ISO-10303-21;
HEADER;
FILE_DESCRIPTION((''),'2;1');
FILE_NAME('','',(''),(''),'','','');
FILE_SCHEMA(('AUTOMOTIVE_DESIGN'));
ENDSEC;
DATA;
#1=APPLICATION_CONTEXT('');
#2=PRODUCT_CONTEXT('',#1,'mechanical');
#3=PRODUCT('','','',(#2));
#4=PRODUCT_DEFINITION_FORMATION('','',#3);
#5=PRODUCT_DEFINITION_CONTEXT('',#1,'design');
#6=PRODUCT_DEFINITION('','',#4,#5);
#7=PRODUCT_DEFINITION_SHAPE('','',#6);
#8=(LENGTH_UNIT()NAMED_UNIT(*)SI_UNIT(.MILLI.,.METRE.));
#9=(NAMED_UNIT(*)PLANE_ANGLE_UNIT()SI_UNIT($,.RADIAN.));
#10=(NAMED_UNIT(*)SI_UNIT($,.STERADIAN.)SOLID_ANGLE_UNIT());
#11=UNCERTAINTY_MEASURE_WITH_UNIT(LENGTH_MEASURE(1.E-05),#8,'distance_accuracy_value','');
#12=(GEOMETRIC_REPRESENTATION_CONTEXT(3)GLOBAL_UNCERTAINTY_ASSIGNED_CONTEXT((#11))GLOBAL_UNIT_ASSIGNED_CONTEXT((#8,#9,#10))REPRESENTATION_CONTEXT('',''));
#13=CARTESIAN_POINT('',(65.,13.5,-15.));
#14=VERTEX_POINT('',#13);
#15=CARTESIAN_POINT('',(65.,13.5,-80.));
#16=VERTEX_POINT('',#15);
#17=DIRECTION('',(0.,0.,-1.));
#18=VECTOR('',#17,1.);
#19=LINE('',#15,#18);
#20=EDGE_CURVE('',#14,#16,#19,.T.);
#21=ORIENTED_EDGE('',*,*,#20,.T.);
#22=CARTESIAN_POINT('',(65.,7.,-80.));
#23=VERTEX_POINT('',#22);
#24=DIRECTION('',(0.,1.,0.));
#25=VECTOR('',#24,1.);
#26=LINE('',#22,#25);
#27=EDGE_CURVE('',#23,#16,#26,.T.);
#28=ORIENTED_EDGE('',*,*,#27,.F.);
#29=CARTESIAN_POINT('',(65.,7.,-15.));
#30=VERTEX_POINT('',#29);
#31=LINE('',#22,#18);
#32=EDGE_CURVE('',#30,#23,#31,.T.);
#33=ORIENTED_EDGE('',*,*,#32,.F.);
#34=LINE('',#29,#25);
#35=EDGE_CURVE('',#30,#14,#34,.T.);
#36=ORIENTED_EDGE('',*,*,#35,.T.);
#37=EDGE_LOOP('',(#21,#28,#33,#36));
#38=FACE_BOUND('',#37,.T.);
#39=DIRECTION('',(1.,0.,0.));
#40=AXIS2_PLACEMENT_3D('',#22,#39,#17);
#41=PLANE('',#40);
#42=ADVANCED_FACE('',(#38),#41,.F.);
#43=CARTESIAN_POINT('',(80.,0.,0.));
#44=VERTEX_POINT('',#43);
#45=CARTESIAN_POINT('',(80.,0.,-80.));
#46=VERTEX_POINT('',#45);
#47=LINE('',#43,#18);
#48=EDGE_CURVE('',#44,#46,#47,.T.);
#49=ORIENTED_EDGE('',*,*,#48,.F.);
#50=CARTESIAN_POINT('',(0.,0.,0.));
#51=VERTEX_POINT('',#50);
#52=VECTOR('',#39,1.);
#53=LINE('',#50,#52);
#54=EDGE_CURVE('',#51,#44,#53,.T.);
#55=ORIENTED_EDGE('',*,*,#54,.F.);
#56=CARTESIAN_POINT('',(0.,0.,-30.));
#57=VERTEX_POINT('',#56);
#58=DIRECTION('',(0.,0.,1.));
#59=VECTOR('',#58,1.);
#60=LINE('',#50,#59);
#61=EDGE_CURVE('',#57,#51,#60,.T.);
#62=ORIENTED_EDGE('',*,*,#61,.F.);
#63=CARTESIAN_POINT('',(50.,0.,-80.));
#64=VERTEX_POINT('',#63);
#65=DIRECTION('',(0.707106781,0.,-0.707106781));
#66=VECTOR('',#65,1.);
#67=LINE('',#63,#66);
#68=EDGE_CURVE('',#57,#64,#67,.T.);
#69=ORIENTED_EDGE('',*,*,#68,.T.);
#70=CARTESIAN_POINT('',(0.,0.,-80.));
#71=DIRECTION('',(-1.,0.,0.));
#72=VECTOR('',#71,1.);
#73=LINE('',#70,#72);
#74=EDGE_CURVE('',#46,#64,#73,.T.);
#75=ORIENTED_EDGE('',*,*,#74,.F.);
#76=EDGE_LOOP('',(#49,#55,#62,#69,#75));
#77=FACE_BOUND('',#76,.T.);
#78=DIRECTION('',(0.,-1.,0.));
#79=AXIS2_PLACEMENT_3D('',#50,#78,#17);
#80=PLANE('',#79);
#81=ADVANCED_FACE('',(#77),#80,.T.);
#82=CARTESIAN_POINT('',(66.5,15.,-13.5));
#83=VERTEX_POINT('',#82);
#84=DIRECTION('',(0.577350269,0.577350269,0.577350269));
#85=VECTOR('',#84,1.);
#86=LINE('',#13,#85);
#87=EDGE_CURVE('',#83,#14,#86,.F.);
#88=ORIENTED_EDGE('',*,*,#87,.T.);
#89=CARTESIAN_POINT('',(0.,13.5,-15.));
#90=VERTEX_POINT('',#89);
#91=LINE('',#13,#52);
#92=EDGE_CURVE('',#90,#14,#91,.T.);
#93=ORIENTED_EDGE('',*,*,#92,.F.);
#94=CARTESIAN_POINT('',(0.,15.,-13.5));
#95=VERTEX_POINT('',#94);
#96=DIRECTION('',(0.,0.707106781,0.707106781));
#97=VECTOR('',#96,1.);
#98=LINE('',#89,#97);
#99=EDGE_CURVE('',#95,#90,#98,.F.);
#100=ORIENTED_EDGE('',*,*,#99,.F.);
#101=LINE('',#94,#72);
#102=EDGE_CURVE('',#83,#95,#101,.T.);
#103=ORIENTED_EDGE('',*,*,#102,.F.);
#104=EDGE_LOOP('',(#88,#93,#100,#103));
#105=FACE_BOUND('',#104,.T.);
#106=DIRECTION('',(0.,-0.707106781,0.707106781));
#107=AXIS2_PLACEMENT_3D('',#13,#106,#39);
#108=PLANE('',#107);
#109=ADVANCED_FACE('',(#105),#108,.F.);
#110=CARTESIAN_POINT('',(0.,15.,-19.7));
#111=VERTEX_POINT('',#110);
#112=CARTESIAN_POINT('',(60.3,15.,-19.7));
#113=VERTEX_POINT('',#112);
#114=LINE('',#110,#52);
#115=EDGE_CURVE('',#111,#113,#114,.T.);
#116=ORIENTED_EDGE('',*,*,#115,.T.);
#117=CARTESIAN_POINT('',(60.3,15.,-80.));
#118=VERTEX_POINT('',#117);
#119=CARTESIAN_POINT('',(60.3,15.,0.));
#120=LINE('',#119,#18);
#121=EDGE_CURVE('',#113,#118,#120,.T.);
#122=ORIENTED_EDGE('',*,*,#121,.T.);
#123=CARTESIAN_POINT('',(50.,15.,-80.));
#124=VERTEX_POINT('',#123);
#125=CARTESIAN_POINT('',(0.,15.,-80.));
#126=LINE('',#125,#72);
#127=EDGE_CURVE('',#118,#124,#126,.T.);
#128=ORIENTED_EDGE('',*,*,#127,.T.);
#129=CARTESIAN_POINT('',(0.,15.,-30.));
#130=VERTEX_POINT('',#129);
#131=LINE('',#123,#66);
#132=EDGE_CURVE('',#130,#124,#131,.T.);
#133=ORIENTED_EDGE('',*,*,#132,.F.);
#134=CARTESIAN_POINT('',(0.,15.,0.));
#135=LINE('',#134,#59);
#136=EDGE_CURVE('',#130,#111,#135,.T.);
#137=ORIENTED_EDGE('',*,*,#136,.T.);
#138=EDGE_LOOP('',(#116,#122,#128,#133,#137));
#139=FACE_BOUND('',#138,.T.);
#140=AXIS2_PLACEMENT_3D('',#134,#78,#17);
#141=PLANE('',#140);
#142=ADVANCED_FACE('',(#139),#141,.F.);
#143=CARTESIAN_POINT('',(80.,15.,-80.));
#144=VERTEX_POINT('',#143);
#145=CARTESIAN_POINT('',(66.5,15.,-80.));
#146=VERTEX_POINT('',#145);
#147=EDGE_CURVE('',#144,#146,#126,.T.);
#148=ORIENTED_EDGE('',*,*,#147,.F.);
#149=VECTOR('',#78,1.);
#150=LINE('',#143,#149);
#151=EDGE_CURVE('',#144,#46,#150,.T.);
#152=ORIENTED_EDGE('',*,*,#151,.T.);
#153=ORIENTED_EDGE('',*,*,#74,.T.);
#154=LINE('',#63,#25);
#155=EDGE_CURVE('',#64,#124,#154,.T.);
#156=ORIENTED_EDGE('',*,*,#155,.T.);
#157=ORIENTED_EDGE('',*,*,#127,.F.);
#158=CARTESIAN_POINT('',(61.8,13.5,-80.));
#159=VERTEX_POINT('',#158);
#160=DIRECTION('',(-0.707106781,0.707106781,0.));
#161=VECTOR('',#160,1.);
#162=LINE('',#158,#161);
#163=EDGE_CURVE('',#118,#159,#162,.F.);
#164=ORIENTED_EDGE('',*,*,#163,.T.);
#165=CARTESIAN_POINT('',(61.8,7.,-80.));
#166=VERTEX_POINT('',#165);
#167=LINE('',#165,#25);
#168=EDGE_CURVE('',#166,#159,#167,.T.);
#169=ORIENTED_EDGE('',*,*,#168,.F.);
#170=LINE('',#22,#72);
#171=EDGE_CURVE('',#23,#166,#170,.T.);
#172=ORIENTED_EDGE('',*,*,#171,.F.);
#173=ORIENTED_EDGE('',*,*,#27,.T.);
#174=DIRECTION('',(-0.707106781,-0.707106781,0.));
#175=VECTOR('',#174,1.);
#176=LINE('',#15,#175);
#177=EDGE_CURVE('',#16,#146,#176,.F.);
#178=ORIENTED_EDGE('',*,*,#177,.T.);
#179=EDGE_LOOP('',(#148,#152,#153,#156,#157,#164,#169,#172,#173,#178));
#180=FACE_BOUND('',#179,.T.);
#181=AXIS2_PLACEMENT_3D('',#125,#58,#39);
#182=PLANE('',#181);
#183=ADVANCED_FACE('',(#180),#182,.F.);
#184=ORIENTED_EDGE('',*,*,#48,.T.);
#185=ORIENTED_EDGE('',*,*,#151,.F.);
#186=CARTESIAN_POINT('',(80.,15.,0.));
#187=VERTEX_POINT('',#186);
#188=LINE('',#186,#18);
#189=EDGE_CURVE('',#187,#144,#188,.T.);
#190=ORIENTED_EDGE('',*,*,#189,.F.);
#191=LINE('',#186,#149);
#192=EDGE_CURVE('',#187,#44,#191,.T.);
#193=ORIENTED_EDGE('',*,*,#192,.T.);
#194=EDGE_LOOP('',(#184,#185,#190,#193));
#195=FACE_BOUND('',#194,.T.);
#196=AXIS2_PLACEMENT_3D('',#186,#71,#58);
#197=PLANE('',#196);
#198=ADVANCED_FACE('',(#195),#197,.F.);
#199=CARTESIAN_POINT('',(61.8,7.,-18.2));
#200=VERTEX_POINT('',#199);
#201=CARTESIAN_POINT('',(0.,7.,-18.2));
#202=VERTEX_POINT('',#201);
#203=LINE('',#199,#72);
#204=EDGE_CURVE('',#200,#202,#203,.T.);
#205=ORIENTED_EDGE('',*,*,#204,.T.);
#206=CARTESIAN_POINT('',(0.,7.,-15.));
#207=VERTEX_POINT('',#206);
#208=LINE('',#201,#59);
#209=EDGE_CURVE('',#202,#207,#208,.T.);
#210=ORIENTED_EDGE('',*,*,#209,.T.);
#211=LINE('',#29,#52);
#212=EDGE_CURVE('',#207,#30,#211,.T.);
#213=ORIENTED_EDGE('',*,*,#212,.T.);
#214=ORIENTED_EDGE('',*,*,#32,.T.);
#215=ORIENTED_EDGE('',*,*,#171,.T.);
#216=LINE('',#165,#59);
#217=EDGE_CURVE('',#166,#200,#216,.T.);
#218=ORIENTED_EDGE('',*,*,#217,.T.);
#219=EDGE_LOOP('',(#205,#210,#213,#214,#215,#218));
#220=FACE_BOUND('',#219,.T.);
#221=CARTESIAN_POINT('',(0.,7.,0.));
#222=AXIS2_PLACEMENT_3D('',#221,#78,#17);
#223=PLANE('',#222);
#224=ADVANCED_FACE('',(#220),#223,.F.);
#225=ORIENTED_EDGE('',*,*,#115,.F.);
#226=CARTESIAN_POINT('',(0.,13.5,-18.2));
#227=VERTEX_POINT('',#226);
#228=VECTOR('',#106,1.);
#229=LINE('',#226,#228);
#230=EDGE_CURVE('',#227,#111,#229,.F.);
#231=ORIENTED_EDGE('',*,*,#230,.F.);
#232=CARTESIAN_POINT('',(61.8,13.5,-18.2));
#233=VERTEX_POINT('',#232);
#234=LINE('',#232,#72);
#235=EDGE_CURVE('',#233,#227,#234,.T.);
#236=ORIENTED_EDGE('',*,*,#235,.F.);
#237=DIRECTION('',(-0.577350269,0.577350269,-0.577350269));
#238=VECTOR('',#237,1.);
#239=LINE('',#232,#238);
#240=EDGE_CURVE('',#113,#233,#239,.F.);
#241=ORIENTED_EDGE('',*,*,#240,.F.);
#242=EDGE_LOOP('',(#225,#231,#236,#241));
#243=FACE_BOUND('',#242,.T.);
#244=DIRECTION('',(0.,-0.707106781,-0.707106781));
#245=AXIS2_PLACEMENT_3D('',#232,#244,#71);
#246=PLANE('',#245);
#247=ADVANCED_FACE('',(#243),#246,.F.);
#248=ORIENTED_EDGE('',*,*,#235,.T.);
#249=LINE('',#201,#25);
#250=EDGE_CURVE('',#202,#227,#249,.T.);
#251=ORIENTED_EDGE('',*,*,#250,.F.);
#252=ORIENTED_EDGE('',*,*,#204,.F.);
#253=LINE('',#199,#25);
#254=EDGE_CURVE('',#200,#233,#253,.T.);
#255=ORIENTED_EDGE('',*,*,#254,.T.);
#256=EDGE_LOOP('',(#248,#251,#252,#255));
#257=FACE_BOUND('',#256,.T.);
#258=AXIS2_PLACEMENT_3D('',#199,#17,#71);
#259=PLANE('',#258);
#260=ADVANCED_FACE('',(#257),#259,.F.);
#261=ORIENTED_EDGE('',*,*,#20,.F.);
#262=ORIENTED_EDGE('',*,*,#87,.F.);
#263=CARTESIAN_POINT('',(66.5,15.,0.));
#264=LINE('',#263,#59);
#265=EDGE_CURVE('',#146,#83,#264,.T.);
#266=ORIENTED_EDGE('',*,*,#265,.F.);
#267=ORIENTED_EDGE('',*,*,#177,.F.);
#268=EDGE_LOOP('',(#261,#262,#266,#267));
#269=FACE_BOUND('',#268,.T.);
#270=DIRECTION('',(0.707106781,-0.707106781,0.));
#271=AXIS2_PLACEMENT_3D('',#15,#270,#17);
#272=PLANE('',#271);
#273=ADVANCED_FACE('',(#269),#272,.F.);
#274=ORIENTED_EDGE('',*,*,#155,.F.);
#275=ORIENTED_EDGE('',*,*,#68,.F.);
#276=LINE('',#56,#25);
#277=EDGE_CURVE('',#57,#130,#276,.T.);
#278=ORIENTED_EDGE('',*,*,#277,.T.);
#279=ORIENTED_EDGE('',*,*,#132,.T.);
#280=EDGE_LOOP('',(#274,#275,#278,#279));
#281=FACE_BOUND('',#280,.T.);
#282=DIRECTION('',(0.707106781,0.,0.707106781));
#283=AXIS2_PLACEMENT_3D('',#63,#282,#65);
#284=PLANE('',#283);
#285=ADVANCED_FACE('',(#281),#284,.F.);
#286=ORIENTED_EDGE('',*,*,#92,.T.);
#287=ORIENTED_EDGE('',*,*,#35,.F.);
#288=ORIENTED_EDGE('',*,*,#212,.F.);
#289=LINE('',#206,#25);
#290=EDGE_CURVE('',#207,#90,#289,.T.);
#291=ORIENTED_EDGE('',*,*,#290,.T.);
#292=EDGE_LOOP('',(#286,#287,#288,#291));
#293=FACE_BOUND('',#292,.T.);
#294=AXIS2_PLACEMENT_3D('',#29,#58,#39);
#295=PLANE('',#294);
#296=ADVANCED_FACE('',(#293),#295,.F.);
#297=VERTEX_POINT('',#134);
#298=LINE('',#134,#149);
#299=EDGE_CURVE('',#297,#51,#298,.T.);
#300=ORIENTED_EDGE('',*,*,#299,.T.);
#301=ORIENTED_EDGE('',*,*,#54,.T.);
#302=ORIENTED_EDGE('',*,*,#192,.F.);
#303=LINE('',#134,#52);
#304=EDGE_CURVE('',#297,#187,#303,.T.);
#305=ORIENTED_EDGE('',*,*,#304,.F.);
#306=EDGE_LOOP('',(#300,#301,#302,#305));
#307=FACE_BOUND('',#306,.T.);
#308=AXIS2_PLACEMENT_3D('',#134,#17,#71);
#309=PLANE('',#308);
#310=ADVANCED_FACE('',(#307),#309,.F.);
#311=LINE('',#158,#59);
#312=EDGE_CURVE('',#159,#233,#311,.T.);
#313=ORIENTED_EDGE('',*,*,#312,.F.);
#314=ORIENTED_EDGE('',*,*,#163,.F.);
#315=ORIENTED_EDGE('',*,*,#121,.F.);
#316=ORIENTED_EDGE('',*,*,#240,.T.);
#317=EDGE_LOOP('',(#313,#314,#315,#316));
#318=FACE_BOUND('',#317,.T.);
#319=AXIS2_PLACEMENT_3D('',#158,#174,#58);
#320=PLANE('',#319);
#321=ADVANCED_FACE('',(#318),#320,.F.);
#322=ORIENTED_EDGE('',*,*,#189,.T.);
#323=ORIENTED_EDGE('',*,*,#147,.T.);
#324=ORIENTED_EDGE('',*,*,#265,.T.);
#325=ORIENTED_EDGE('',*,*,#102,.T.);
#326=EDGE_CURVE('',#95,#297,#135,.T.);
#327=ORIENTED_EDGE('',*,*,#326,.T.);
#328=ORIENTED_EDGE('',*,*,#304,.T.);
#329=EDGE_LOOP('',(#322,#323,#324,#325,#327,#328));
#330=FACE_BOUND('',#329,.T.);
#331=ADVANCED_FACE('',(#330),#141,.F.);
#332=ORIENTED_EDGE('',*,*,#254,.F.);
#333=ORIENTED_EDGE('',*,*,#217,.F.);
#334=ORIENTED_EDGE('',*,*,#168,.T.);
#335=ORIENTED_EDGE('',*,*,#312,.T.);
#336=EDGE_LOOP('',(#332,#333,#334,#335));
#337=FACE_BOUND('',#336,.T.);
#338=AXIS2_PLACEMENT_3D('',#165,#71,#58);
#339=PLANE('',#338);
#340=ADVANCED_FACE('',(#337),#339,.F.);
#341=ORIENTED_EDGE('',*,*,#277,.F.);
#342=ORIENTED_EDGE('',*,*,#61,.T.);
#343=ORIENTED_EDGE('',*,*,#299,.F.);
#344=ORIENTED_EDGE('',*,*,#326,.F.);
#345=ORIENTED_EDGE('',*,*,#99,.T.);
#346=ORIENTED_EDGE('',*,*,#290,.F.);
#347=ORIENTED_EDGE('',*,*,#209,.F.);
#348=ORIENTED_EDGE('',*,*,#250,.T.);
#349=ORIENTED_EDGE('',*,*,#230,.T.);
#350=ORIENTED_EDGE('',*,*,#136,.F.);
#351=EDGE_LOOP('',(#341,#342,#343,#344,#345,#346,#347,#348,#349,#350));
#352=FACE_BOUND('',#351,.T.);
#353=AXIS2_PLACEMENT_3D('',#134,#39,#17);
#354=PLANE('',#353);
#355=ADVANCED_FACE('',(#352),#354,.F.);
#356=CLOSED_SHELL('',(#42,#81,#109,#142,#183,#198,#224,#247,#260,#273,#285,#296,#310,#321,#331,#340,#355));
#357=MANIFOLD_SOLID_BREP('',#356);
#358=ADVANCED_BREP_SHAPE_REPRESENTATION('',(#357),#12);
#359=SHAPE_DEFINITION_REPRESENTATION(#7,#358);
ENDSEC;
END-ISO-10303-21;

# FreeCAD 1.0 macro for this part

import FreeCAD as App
import Part
import Sketcher
Q = App.Units.Quantity


def edges_at(feature, points):
    """Names of the edges that pass closest to the given points."""
    edges = feature.Shape.Edges
    near = lambda p: min(range(len(edges)), key=lambda i: edges[i].distToShape(Part.Vertex(*p))[0])
    return sorted({f"Edge{near(p) + 1}" for p in points})


def add_polygon(sketch, points):
    """Adds a closed chain of lines whose ends are joined by coincident constraints."""
    first, n = sketch.GeometryCount, len(points)
    for a, b in zip(points, points[1:] + points[:1]):
        sketch.addGeometry(Part.LineSegment(App.Vector(*a, 0), App.Vector(*b, 0)), False)
    for i in range(n):
        sketch.addConstraint(Sketcher.Constraint("Coincident", first + i, 2, first + (i + 1) % n, 1))

doc = App.newDocument("Part")
body = doc.addObject("PartDesign::Body", "Body")

# Sketch on XZ plane
sketch1 = body.newObject("Sketcher::SketchObject", "Sketch")
sketch1.AttachmentSupport = (doc.getObject("XZ_Plane"), [""])
sketch1.MapMode = "FlatFace"
add_polygon(sketch1, [(0, -80), (0, 0), (80, 0), (80, -80)])  # lines 0-3
sketch1.addConstraint([
    Sketcher.Constraint("Vertical", 0),
    Sketcher.Constraint("Horizontal", 1),
    Sketcher.Constraint("Vertical", 2),
    Sketcher.Constraint("Horizontal", 3),
    Sketcher.Constraint("Coincident", 0, 2, -1, 1),
    Sketcher.Constraint("Equal", 3, 0),
    Sketcher.Constraint("DistanceX", 1, 1, 1, 2, Q("80 mm")),
])
pad1 = body.newObject("PartDesign::Pad", "Pad")
pad1.Profile = sketch1
pad1.Length = 15
pad1.Reversed = True

# Sketch on XZ plane
sketch2 = body.newObject("Sketcher::SketchObject", "Sketch001")
sketch2.AttachmentSupport = (doc.getObject("XZ_Plane"), [""])
sketch2.MapMode = "FlatFace"
sketch2.AttachmentOffset = App.Placement(App.Vector(0, 0, -15), App.Rotation())
add_polygon(sketch2, [(65, -80), (61.8, -80), (61.8, -18.2), (0, -18.2), (0, -15), (65, -15)])  # lines 0-5
sketch2.addConstraint([
    Sketcher.Constraint("Horizontal", 0),
    Sketcher.Constraint("Vertical", 1),
    Sketcher.Constraint("Horizontal", 2),
    Sketcher.Constraint("Vertical", 3),
    Sketcher.Constraint("Horizontal", 4),
    Sketcher.Constraint("Vertical", 5),
    Sketcher.Constraint("PointOnObject", 2, 2, -2),
    Sketcher.Constraint("Equal", 2, 1),
    Sketcher.Constraint("Equal", 0, 3),
    Sketcher.Constraint("DistanceX", 4, 1, 4, 2, Q("65 mm")),
    Sketcher.Constraint("DistanceX", 0, 2, 0, 1, Q("3.2 mm")),
    Sketcher.Constraint("DistanceY", 0, 2, -1, 1, Q("80 mm")),
])
pocket1 = body.newObject("PartDesign::Pocket", "Pocket")
pocket1.Profile = sketch2
pocket1.Length = 8
pocket1.Reversed = True
doc.recompute()

chamfer = body.newObject("PartDesign::Chamfer", "Chamfer")
chamfer.Base = (pocket1, edges_at(pocket1, [
    (65, 15, -47.5),
    (61.8, 15, -49.1),
    (30.9, 15, -18.2),
    (32.5, 15, -15),
]))
chamfer.Size = 1.5

# Sketch on XZ plane
sketch3 = body.newObject("Sketcher::SketchObject", "Sketch002")
sketch3.AttachmentSupport = (doc.getObject("XZ_Plane"), [""])
sketch3.MapMode = "FlatFace"
sketch3.AttachmentOffset = App.Placement(App.Vector(0, 0, -15), App.Rotation())
add_polygon(sketch3, [(50, -80), (0, -80), (0, -30)])  # lines 0-2
sketch3.addConstraint([
    Sketcher.Constraint("Horizontal", 0),
    Sketcher.Constraint("Vertical", 1),
    Sketcher.Constraint("PointOnObject", 0, 2, -2),
    Sketcher.Constraint("Equal", 0, 1),
    Sketcher.Constraint("DistanceX", 0, 2, 0, 1, Q("50 mm")),
    Sketcher.Constraint("DistanceY", 0, 2, -1, 1, Q("80 mm")),
])
pocket2 = body.newObject("PartDesign::Pocket", "Pocket001")
pocket2.Profile = sketch3
pocket2.Type = "ThroughAll"
pocket2.Reversed = True

doc.recompute()
